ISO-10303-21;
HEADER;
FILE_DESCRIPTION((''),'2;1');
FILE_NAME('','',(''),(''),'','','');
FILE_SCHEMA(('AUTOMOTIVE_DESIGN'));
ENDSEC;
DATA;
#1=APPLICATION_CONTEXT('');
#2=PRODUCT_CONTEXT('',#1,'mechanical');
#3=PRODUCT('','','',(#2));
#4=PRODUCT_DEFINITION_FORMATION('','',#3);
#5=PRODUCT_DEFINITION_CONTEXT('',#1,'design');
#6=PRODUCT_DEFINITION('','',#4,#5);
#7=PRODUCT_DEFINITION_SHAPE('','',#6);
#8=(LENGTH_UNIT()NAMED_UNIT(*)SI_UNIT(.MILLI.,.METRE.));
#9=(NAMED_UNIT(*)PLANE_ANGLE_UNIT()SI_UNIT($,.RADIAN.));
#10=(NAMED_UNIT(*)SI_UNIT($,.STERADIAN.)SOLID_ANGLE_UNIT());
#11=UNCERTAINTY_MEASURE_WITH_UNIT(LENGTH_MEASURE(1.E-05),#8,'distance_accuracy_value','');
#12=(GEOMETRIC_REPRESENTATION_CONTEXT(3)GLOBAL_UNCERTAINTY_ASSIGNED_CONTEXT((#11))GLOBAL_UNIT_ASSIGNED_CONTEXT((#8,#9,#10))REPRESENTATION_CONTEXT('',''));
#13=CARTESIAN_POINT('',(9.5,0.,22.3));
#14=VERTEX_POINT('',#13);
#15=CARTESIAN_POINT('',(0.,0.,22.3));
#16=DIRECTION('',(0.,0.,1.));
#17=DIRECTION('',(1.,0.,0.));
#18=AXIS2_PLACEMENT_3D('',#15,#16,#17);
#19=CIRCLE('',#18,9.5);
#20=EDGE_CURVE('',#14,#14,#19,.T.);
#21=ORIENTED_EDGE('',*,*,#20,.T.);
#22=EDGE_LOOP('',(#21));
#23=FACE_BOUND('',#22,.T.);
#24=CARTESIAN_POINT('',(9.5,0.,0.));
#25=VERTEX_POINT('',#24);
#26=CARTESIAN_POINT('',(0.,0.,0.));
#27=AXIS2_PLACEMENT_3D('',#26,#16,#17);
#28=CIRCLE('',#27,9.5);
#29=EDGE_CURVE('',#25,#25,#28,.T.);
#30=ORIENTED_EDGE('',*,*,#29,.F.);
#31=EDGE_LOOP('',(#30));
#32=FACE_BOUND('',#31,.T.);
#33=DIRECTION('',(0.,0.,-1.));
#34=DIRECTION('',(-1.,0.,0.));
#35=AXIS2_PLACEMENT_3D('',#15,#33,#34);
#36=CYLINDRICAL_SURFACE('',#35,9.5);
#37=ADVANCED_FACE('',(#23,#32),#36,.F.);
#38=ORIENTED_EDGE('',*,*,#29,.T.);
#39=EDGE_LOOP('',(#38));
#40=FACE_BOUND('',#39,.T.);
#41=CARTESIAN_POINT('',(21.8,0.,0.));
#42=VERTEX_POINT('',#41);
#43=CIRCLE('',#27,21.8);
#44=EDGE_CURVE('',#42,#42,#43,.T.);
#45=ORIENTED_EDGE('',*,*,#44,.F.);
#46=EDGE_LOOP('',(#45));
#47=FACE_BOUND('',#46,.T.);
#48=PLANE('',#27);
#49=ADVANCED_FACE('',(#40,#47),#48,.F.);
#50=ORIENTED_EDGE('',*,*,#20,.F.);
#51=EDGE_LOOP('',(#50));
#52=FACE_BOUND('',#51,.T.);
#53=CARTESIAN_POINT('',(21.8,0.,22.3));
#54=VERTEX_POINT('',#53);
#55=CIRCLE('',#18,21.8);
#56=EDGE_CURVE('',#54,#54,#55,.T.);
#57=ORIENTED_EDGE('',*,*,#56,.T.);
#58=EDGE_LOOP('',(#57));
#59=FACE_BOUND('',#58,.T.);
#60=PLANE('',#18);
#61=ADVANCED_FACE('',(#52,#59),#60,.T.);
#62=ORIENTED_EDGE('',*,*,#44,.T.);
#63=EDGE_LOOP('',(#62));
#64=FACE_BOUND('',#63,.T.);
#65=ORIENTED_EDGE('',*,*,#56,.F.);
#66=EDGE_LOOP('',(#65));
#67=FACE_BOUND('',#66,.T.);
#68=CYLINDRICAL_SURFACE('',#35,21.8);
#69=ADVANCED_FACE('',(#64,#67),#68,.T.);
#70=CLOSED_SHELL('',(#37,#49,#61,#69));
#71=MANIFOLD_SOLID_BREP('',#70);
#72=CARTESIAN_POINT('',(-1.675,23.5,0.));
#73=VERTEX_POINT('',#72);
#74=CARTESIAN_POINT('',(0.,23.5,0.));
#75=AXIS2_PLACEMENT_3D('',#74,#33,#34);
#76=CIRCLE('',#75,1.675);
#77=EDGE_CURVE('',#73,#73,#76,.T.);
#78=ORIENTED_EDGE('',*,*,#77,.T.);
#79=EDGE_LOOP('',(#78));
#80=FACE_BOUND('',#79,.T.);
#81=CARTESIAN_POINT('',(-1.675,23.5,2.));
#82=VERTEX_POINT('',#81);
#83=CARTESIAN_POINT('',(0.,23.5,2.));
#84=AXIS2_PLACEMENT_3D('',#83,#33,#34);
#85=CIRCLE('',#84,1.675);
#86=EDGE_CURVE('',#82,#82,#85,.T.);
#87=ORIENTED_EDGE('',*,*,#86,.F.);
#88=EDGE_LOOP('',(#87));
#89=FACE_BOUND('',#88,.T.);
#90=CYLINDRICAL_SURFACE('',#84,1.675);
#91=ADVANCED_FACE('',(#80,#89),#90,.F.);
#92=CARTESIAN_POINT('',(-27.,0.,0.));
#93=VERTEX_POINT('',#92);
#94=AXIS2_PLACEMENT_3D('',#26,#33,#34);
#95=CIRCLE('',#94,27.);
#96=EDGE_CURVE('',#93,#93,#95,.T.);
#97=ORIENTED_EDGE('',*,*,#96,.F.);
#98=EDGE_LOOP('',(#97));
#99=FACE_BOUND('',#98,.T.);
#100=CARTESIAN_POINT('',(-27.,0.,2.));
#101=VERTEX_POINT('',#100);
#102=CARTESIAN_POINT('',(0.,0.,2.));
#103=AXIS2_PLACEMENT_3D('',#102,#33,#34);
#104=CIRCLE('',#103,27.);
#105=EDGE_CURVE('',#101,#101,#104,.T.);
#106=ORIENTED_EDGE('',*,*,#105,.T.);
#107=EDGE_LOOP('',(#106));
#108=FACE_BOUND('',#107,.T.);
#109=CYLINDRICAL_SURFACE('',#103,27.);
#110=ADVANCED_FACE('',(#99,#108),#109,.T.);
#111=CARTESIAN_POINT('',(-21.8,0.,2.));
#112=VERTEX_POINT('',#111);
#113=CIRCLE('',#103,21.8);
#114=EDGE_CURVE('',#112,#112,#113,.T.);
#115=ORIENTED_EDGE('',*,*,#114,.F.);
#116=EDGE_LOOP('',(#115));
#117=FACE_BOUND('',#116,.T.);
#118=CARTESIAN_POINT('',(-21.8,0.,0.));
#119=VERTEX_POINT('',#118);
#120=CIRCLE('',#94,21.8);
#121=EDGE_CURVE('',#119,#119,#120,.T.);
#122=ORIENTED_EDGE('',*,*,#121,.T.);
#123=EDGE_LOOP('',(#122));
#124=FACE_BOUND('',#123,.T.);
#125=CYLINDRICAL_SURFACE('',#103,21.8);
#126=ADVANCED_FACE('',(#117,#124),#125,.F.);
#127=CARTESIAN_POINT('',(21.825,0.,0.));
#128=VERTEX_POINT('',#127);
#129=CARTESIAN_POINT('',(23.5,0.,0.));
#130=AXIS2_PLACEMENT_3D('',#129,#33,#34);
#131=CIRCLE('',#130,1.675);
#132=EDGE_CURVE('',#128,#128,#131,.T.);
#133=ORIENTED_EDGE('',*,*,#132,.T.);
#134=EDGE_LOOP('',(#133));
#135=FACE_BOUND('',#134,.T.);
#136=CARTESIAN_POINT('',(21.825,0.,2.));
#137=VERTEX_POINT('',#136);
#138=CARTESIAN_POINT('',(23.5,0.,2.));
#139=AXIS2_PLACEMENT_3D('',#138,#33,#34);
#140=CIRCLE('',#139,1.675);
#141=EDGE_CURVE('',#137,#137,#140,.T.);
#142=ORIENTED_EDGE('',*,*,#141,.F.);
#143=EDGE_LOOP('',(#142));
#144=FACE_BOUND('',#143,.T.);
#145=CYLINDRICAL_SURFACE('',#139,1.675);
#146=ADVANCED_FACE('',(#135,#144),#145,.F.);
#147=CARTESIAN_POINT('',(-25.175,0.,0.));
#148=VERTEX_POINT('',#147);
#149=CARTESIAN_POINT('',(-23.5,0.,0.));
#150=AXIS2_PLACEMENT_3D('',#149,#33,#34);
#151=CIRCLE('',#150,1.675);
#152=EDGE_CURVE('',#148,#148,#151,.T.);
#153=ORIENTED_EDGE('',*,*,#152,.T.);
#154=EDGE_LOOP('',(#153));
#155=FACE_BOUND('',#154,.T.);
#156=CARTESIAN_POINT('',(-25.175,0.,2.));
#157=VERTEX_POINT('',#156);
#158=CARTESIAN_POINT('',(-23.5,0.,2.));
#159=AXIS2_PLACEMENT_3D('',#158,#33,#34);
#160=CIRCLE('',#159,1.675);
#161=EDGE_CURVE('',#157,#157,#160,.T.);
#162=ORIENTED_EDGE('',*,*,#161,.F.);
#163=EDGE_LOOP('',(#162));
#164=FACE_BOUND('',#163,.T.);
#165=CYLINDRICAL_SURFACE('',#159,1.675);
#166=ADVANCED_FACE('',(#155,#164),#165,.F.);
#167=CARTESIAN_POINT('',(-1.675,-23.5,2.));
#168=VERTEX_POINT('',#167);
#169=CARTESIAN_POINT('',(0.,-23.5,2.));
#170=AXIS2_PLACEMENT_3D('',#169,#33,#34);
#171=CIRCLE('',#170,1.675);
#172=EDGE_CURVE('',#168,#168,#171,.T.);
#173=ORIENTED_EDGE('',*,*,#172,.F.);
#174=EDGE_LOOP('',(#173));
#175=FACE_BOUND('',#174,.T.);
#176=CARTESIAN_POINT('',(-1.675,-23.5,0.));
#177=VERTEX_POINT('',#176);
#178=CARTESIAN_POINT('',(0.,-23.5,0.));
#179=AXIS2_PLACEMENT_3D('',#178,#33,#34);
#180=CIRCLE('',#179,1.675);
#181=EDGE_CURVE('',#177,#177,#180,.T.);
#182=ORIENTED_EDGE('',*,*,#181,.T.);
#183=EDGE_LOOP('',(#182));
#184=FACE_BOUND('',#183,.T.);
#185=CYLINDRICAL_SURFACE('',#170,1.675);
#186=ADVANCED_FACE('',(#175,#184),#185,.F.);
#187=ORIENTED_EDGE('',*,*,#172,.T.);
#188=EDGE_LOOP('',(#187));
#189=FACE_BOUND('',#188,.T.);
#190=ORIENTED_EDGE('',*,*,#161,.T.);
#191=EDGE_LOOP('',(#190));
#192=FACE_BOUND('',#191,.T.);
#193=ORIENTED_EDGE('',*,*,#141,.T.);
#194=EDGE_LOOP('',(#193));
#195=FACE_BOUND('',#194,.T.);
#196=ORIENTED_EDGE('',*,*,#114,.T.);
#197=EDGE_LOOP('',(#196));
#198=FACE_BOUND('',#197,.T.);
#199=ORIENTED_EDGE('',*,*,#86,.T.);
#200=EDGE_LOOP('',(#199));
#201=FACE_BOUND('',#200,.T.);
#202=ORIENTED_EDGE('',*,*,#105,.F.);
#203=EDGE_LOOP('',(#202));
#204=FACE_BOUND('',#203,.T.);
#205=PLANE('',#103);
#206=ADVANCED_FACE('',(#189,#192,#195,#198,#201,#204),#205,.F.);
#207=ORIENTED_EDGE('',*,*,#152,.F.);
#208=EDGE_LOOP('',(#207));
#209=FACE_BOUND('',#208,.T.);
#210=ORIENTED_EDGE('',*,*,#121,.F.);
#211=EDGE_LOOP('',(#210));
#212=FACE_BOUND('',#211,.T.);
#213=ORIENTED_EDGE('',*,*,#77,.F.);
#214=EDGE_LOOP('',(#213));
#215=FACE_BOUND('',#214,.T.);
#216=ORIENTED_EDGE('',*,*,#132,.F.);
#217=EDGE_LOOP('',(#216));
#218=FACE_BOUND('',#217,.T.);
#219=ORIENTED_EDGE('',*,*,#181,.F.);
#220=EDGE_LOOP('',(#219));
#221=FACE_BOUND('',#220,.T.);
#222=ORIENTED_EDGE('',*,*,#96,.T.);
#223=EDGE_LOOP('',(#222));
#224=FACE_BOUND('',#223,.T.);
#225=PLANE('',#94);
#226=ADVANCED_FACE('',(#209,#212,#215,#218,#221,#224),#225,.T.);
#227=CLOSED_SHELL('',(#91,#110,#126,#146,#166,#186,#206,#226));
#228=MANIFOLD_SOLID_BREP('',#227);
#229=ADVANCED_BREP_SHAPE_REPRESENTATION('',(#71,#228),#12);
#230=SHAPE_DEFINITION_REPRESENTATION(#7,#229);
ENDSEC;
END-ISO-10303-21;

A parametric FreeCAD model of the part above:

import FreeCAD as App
import Part
import Sketcher

V = App.Vector

doc = App.newDocument("Part")
body = doc.addObject("PartDesign::Body", "Body")

sketch1 = body.newObject("Sketcher::SketchObject", "Sketch")
sketch1.AttachmentSupport = (doc.getObject("XY_Plane"), [""])
sketch1.MapMode = "FlatFace"
sketch1.addGeometry([
    Part.Circle(V(0, 0, 0), V(0, 0, 1), 22),
    Part.Circle(V(0, 0, 0), V(0, 0, 1), 10),
], False)
sketch1.addConstraint([
    Sketcher.Constraint("Coincident", 0, 3, -1, 1),
    Sketcher.Constraint("Coincident", 1, 3, -1, 1),
    Sketcher.Constraint("Diameter", 1, 19.0),
    Sketcher.Constraint("Diameter", 0, 43.6),
])
pad1 = body.newObject("PartDesign::Pad", "Pad")
pad1.Profile = sketch1
pad1.Length = 22.3
body2 = doc.addObject("PartDesign::Body", "Body001")

sketch2 = body2.newObject("Sketcher::SketchObject", "Sketch001")
sketch2.AttachmentSupport = (doc.getObject("XY_Plane001"), [""])
sketch2.MapMode = "FlatFace"
sketch2.addGeometry([
    Part.Circle(V(0, 0, 0), V(0, 0, 1), 27),
    Part.Circle(V(0, -23.5, 0), V(0, 0, 1), 1.7),
    Part.Circle(V(23.5, 0, 0), V(0, 0, 1), 1.7),
    Part.Circle(V(0, 0, 0), V(0, 0, 1), 21.8),
    Part.Circle(V(-23.5, 0, 0), V(0, 0, 1), 1.7),
    Part.Circle(V(0, 23.5, 0), V(0, 0, 1), 1.7),
], False)
sketch2.addConstraint([
    Sketcher.Constraint("Coincident", 0, 3, -1, 1),
    Sketcher.Constraint("Coincident", 3, 3, -1, 1),
    Sketcher.Constraint("Equal", 1, 2),
    Sketcher.Constraint("Equal", 2, 4),
    Sketcher.Constraint("Equal", 4, 5),
    Sketcher.Constraint("Symmetric", 2, 3, 4, 3, -1, 1),
    Sketcher.Constraint("Symmetric", 1, 3, 5, 3, -1, 1),
    Sketcher.Constraint("PointOnObject", 1, 3, -2),
    Sketcher.Constraint("PointOnObject", 2, 3, -1),
    Sketcher.Constraint("Diameter", 0, 54.0),
    Sketcher.Constraint("Diameter", 3, 43.6),
    Sketcher.Constraint("Diameter", 1, 3.35),
    Sketcher.Constraint("DistanceX", 4, 3, 2, 3, 47.0),
    Sketcher.Constraint("DistanceY", 1, 3, 5, 3, 47.0),
])
pad2 = body2.newObject("PartDesign::Pad", "Pad001")
pad2.Profile = sketch2
pad2.Length = 2

doc.recompute()
